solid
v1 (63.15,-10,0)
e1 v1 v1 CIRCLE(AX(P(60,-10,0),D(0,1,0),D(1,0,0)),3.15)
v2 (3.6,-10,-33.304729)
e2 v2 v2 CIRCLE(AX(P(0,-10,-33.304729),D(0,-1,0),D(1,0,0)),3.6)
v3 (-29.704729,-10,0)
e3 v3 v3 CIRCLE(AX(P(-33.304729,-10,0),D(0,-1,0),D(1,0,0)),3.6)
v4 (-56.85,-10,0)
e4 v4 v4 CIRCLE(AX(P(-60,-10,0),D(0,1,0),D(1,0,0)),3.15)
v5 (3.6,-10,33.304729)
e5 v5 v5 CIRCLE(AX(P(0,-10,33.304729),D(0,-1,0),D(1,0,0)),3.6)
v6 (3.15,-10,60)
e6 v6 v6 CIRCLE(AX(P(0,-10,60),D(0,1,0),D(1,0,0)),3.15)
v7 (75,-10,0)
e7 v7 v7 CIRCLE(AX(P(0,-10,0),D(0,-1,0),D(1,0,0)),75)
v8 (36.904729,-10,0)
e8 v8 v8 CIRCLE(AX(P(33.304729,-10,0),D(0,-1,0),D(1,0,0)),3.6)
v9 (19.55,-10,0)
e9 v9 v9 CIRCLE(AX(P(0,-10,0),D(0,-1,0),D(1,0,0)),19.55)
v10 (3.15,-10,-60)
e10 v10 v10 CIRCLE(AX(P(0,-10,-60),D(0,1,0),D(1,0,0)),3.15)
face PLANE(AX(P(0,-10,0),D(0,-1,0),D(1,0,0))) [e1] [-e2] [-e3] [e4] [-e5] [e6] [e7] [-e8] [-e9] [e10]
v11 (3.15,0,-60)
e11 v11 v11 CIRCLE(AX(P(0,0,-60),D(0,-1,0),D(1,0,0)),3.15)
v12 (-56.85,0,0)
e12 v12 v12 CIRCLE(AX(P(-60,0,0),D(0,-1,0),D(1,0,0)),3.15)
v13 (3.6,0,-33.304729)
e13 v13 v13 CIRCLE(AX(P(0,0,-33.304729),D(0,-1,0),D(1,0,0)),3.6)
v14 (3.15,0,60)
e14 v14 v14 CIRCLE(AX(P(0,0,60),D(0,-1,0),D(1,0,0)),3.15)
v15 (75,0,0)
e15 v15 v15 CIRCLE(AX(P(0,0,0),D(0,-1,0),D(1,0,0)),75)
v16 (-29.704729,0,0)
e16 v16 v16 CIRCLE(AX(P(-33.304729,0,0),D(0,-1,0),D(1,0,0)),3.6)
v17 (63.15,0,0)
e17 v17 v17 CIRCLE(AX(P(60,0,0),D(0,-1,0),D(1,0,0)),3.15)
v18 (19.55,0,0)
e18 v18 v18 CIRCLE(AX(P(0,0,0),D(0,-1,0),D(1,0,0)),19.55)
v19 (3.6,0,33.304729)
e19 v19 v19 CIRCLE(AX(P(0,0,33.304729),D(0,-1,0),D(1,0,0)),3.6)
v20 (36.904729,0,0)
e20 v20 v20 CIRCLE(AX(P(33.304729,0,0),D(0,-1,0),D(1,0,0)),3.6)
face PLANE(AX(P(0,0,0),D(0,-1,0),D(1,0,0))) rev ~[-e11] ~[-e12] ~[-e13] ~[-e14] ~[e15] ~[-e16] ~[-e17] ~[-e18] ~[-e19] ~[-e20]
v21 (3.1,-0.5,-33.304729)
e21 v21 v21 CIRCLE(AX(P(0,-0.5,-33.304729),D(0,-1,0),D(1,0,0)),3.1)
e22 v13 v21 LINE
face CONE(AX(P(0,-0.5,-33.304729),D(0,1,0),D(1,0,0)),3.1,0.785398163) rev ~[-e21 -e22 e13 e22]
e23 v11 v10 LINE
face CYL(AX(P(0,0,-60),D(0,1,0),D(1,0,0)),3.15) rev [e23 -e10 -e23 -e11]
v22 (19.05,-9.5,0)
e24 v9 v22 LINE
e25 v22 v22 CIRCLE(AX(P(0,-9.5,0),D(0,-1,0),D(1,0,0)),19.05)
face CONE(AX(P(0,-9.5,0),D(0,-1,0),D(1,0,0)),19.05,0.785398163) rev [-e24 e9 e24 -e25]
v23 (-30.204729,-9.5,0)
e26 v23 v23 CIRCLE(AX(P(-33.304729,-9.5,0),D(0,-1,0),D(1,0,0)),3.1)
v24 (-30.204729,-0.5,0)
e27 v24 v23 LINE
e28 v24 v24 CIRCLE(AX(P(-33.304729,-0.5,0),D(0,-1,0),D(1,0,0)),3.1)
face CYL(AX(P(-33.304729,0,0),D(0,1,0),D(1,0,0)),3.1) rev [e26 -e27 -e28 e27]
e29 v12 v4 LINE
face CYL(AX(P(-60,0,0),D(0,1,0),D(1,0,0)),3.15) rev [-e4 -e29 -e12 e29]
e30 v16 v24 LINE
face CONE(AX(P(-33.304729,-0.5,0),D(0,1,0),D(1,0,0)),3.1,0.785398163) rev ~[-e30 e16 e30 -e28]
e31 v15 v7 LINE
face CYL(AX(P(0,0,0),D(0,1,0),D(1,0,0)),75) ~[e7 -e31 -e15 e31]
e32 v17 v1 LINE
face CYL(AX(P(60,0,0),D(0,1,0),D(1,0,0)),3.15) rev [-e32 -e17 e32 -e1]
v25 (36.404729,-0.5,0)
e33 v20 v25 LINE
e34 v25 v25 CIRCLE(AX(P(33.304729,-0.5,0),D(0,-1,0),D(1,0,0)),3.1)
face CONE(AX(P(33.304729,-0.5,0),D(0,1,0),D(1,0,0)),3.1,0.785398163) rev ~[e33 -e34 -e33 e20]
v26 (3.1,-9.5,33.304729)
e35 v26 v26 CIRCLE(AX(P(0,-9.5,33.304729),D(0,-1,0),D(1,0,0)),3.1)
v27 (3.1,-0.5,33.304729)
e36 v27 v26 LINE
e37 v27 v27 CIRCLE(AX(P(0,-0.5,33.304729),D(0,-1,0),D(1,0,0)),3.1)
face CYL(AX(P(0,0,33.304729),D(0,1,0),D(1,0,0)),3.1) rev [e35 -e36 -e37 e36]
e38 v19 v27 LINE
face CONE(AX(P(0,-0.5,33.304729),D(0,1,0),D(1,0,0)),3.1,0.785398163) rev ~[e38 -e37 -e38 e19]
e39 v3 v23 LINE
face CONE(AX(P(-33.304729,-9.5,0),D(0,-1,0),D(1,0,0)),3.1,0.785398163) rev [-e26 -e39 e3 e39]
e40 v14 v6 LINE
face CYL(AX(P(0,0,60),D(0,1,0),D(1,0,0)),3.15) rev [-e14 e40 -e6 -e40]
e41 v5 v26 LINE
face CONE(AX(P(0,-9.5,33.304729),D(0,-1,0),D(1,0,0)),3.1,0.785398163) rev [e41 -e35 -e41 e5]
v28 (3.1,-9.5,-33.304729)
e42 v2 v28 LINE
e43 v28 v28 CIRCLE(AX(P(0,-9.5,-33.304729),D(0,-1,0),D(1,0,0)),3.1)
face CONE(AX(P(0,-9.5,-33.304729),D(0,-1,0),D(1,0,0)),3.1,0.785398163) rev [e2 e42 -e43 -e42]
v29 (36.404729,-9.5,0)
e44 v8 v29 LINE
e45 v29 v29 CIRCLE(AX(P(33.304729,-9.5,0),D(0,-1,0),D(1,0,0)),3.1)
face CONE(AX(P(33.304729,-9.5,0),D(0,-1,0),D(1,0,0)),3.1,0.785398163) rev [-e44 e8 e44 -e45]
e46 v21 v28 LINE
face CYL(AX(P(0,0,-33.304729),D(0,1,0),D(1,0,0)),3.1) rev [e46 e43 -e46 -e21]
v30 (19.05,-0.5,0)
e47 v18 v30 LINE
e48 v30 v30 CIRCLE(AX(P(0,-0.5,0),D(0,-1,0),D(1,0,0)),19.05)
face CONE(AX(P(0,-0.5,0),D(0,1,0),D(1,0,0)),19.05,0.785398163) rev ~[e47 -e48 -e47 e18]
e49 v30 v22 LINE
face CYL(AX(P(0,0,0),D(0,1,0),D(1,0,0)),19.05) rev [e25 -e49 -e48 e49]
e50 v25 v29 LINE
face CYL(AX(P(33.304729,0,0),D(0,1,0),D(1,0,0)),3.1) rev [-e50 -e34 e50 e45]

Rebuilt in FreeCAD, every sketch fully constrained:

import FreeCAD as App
import Part
import Sketcher

V = App.Vector


def edges_at(feature, points):
    """Names of the edges that pass closest to the given points."""
    edges = feature.Shape.Edges
    near = lambda p: min(range(len(edges)), key=lambda i: edges[i].distToShape(Part.Vertex(*p))[0])
    return sorted({f"Edge{near(p) + 1}" for p in points})

doc = App.newDocument("Part")
body = doc.addObject("PartDesign::Body", "Body")

# Sketch on XZ plane
sketch1 = body.newObject("Sketcher::SketchObject", "Sketch")
sketch1.AttachmentSupport = (doc.getObject("XZ_Plane"), [""])
sketch1.MapMode = "FlatFace"
sketch1.addGeometry([
    Part.Circle(V(0, 0, 0), V(0, 0, 1), 75),
    Part.Circle(V(0, 0, 0), V(0, 0, 1), 19),
], False)
sketch1.addConstraint([
    Sketcher.Constraint("Coincident", 0, 3, -1, 1),
    Sketcher.Constraint("Coincident", 1, 3, -1, 1),
    Sketcher.Constraint("Diameter", 0, 150.0),
    Sketcher.Constraint("Diameter", 1, 38.1),
])
pad1 = body.newObject("PartDesign::Pad", "Pad")
pad1.Profile = sketch1
pad1.Length = 10

# Sketch on XZ plane
sketch2 = body.newObject("Sketcher::SketchObject", "Sketch001")
sketch2.AttachmentSupport = (doc.getObject("XZ_Plane"), [""])
sketch2.MapMode = "FlatFace"
sketch2.addGeometry([
    Part.Circle(V(0, 33.3, 0), V(0, 0, 1), 3.1),
    Part.Circle(V(33.3, 0, 0), V(0, 0, 1), 3.1),
    Part.Circle(V(0, -33.3, 0), V(0, 0, 1), 3.1),
    Part.Circle(V(-33.3, 0, 0), V(0, 0, 1), 3.1),
], False)
sketch2.addConstraint([
    Sketcher.Constraint("Equal", 0, 1),
    Sketcher.Constraint("Equal", 1, 2),
    Sketcher.Constraint("Equal", 2, 3),
    Sketcher.Constraint("Symmetric", 0, 3, 2, 3, -1, 1),
    Sketcher.Constraint("Symmetric", 1, 3, 3, 3, -1, 1),
    Sketcher.Constraint("PointOnObject", 0, 3, -2),
    Sketcher.Constraint("PointOnObject", 1, 3, -1),
    Sketcher.Constraint("Diameter", 0, 6.2),
    Sketcher.Constraint("DistanceY", -1, 1, 0, 3, 33.304729),
    Sketcher.Constraint("DistanceX", -1, 1, 1, 3, 33.304729),
])
pocket1 = body.newObject("PartDesign::Pocket", "Pocket")
pocket1.Profile = sketch2
pocket1.Type = "ThroughAll"
pocket1.Reversed = True
doc.recompute()

chamfer = body.newObject("PartDesign::Chamfer", "Chamfer")
chamfer.Base = (pocket1, edges_at(pocket1, [
    (-36.405, -10, 0),
    (-3.1, -10, 33.305),
    (30.205, -10, 0),
    (-3.1, -10, -33.305),
    (-3.1, 0, -33.305),
    (-36.405, 0, 0),
    (-3.1, 0, 33.305),
    (30.205, 0, 0),
    (-19.05, 0, 0),
    (-19.05, -10, 0),
]))
chamfer.Size = 0.5

# Sketch on XZ plane
sketch3 = body.newObject("Sketcher::SketchObject", "Sketch002")
sketch3.AttachmentSupport = (doc.getObject("XZ_Plane"), [""])
sketch3.MapMode = "FlatFace"
sketch3.addGeometry([
    Part.Circle(V(60, 0, 0), V(0, 0, 1), 3.1),
    Part.Circle(V(0, 60, 0), V(0, 0, 1), 3.1),
    Part.Circle(V(-60, 0, 0), V(0, 0, 1), 3.1),
    Part.Circle(V(0, -60, 0), V(0, 0, 1), 3.1),
], False)
sketch3.addConstraint([
    Sketcher.Constraint("Equal", 0, 1),
    Sketcher.Constraint("Equal", 1, 2),
    Sketcher.Constraint("Equal", 2, 3),
    Sketcher.Constraint("Symmetric", 0, 3, 2, 3, -1, 1),
    Sketcher.Constraint("Symmetric", 1, 3, 3, 3, -1, 1),
    Sketcher.Constraint("PointOnObject", 0, 3, -1),
    Sketcher.Constraint("PointOnObject", 1, 3, -2),
    Sketcher.Constraint("Diameter", 0, 6.3),
    Sketcher.Constraint("DistanceX", -1, 1, 0, 3, 60.0),
    Sketcher.Constraint("DistanceY", -1, 1, 1, 3, 60.0),
])
pocket2 = body.newObject("PartDesign::Pocket", "Pocket001")
pocket2.Profile = sketch3
pocket2.Length = 25
pocket2.Reversed = True

doc.recompute()
